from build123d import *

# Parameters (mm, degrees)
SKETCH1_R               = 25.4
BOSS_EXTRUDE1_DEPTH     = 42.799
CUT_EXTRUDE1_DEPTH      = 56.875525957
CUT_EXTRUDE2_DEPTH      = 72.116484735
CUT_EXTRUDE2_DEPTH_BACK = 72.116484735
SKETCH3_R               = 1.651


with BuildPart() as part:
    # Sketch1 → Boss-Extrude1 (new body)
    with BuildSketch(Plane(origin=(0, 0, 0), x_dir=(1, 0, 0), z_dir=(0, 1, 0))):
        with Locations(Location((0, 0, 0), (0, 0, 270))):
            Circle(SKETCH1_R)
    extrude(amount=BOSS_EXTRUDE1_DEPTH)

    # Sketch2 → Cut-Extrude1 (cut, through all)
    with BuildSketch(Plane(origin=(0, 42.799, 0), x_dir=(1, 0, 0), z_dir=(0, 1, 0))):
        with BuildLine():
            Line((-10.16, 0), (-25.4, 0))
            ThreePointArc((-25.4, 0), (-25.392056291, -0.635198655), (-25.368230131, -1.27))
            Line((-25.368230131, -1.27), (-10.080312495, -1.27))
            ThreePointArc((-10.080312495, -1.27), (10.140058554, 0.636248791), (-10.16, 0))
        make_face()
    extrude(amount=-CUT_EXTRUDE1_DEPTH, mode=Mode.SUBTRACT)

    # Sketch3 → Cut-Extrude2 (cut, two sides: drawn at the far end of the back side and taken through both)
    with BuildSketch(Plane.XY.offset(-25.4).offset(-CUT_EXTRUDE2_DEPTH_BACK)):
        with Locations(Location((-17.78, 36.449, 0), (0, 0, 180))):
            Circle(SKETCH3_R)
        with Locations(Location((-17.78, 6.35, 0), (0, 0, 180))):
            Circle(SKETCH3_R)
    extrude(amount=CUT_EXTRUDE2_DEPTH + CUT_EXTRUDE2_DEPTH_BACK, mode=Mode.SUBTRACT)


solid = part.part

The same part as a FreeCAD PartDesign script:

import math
import FreeCAD as App
import Part
import Sketcher
from FreeCAD import Vector
Q = App.Units.Quantity

doc = App.newDocument("Part")
body = doc.addObject("PartDesign::Body", "Body")

sketch1 = body.newObject("Sketcher::SketchObject", "Sketch")
sketch1.AttachmentSupport = (doc.getObject("XZ_Plane"), [""])
sketch1.MapMode = "FlatFace"
sketch1.addGeometry(Part.Circle(Vector(0, 0, 0), Vector(0, 0, 1), 25), False)
sketch1.addConstraint([
    Sketcher.Constraint("Coincident", 0, 3, -1, 1),
    Sketcher.Constraint("Diameter", 0, Q("2 in")),
])
pad1 = body.newObject("PartDesign::Pad", "Pad")
pad1.Profile = sketch1
pad1.Length = Q("1.685 in")
pad1.Reversed = True

sketch2 = body.newObject("Sketcher::SketchObject", "Sketch001")
sketch2.AttachmentSupport = (doc.getObject("XZ_Plane"), [""])
sketch2.MapMode = "FlatFace"
sketch2.AttachmentOffset = App.Placement(Vector(0, 0, -1.685 * 25.4), App.Rotation())
sketch2.addGeometry([
    Part.LineSegment(Vector(-10.2, 0, 0), Vector(-25.4, 0, 0)),
    Part.ArcOfCircle(Part.Circle(Vector(0, 0, 0), Vector(0, 0, 1), 25.4), math.radians(177.13), math.radians(180)),
    Part.LineSegment(Vector(-25.4, 1.3, 0), Vector(-10.1, 1.3, 0)),
    Part.ArcOfCircle(Part.Circle(Vector(0, 0, 0), Vector(0, 0, 1), 10.2), math.radians(180), math.radians(533)),
], False)
sketch2.addConstraint([
    Sketcher.Constraint("Coincident", 0, 2, 1, 2),
    Sketcher.Constraint("Coincident", 1, 1, 2, 1),
    Sketcher.Constraint("Coincident", 2, 2, 3, 2),
    Sketcher.Constraint("Coincident", 3, 1, 0, 1),
    Sketcher.Constraint("Horizontal", 0),
    Sketcher.Constraint("Horizontal", 2),
    Sketcher.Constraint("Coincident", 1, 3, -1, 1),
    Sketcher.Constraint("Coincident", 3, 3, -1, 1),
    Sketcher.Constraint("PointOnObject", 0, 2, -1),
    Sketcher.Constraint("Radius", 1, Q("0.9999999 in")),
    Sketcher.Constraint("Radius", 3, Q("0.4 in")),
    Sketcher.Constraint("DistanceY", -1, 1, 1, 1, Q("0.05 in")),
])
pocket1 = body.newObject("PartDesign::Pocket", "Pocket")
pocket1.Profile = sketch2
pocket1.Type = "ThroughAll"
pocket1.Reversed = True

sketch3 = body.newObject("Sketcher::SketchObject", "Sketch002")
sketch3.AttachmentSupport = (doc.getObject("XY_Plane"), [""])
sketch3.MapMode = "FlatFace"
sketch3.AttachmentOffset = App.Placement(Vector(0, 0, -1 * 25.4), App.Rotation())
sketch3.addGeometry([
    Part.Circle(Vector(-17.8, 36.4, 0), Vector(0, 0, 1), 1.7),
    Part.Circle(Vector(-17.8, 6.3, 0), Vector(0, 0, 1), 1.7),
], False)
sketch3.addConstraint([
    Sketcher.Constraint("Equal", 0, 1),
    Sketcher.Constraint("Vertical", 0, 3, 1, 3),
    Sketcher.Constraint("Diameter", 0, Q("0.13 in")),
    Sketcher.Constraint("DistanceX", 0, 3, -1, 1, Q("0.7 in")),
    Sketcher.Constraint("DistanceY", -1, 1, 1, 3, Q("0.25 in")),
    Sketcher.Constraint("DistanceY", -1, 1, 0, 3, Q("1.435 in")),
])
pocket2 = body.newObject("PartDesign::Pocket", "Pocket001")
pocket2.Profile = sketch3
pocket2.Type = "ThroughAll"
pocket2.Midplane = True

doc.recompute()
